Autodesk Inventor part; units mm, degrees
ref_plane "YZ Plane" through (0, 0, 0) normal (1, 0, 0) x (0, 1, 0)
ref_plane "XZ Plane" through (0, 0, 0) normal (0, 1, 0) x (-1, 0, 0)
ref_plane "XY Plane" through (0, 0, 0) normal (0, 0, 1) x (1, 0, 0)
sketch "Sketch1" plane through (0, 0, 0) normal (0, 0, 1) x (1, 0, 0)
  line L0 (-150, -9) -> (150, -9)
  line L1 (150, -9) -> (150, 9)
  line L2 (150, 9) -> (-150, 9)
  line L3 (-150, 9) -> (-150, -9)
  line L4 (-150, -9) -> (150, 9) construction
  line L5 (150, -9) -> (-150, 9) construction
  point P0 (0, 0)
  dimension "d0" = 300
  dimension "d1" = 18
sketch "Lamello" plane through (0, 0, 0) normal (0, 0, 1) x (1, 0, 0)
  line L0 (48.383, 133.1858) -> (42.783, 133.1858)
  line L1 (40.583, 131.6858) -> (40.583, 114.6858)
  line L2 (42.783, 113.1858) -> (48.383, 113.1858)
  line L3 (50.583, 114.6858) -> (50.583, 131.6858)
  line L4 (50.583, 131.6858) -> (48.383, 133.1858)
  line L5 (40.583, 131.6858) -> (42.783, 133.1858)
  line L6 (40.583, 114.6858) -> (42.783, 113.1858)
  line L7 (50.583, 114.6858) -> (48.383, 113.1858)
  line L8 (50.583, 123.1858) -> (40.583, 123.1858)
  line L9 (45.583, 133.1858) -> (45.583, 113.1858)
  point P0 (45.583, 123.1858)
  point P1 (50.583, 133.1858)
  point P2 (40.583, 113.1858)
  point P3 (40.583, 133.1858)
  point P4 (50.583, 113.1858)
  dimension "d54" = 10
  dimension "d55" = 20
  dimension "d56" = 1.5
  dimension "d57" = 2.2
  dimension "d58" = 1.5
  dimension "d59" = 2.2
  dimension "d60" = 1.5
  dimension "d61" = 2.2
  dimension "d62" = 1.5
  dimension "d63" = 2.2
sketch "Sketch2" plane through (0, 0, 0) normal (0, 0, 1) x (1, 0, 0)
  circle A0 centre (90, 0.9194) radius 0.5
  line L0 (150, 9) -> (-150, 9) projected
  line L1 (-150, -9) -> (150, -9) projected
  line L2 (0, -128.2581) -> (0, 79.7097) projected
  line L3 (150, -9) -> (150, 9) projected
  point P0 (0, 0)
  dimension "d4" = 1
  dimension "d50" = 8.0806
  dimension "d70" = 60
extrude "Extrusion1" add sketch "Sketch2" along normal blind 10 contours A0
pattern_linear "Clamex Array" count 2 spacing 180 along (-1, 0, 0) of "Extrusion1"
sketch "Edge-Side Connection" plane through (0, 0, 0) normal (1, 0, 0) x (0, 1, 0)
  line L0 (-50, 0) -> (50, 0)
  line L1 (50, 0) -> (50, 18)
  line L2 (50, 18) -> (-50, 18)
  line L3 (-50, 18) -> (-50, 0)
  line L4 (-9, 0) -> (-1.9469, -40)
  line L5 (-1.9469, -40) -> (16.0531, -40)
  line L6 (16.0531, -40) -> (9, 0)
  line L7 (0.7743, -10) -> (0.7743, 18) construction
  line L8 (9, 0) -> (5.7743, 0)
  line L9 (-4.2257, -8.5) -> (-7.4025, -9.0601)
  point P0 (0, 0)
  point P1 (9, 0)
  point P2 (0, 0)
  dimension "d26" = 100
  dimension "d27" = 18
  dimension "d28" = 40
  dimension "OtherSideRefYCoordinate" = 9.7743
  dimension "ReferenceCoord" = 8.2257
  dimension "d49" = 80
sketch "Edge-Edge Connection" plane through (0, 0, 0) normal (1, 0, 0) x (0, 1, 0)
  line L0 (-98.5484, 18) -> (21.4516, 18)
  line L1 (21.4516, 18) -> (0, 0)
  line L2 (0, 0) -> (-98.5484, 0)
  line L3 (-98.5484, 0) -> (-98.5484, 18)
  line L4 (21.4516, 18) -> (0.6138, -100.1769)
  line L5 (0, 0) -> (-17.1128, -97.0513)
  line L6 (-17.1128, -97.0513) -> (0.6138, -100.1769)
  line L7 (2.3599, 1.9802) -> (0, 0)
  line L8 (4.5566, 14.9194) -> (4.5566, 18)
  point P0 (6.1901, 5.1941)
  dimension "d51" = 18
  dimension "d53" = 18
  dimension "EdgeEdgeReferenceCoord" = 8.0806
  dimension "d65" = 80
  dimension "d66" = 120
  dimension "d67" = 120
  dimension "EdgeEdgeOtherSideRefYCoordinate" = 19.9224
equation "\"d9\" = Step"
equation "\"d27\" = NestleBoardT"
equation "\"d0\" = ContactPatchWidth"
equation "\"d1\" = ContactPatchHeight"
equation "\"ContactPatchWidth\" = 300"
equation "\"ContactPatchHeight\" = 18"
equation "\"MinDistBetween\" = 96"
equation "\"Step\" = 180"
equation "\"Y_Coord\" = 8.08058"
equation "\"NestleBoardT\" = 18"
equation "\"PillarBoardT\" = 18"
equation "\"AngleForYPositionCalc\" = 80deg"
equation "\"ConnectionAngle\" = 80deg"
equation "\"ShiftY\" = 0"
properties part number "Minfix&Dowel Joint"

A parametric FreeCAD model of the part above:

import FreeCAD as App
import Part
import Sketcher
from FreeCAD import Vector
Q = App.Units.Quantity

doc = App.newDocument("Part")
params = doc.addObject("Spreadsheet::Sheet", "Params")
for row, (alias, value) in enumerate([
    ("sketch1_diameter", "1 mm"),
    ("pad1_length", "10 mm"),
    ("linearpattern_pitch", "180 mm"),
], start=1):
    params.set(f"A{row}", alias)
    params.set(f"B{row}", "=" + value)
    params.setAlias(f"B{row}", alias)

body = doc.addObject("PartDesign::Body", "Body")
body.AllowCompound = True

sketch1 = body.newObject("Sketcher::SketchObject", "Sketch")
sketch1.AttachmentSupport = (doc.getObject("XY_Plane"), [""])
sketch1.MapMode = "FlatFace"
sketch1.addGeometry(Part.Circle(Vector(90, 0.9, 0), Vector(0, 0, 1), 0.5), False)
sketch1.addConstraint([
    Sketcher.Constraint("Diameter", 0, Q("1 mm")),
    Sketcher.Constraint("DistanceX", -1, 1, 0, 3, Q("90 mm")),
    Sketcher.Constraint("DistanceY", -1, 1, 0, 3, Q("0.9194 mm")),
])
sketch1.setExpression("Constraints[0]", "Params.sketch1_diameter")
pad1 = body.newObject("PartDesign::Pad", "Pad")
pad1.Profile = sketch1
pad1.setExpression("Length", "Params.pad1_length")
doc.recompute()

linearpattern = body.newObject("PartDesign::LinearPattern", "LinearPattern")
linearpattern.Originals = [pad1]
linearpattern.Direction = (doc.getObject("X_Axis"), [""])
linearpattern.Mode = "offset"
linearpattern.setExpression("Offset", "Params.linearpattern_pitch")
linearpattern.Occurrences = 2
linearpattern.Reversed = True
body.Tip = linearpattern

doc.recompute()
